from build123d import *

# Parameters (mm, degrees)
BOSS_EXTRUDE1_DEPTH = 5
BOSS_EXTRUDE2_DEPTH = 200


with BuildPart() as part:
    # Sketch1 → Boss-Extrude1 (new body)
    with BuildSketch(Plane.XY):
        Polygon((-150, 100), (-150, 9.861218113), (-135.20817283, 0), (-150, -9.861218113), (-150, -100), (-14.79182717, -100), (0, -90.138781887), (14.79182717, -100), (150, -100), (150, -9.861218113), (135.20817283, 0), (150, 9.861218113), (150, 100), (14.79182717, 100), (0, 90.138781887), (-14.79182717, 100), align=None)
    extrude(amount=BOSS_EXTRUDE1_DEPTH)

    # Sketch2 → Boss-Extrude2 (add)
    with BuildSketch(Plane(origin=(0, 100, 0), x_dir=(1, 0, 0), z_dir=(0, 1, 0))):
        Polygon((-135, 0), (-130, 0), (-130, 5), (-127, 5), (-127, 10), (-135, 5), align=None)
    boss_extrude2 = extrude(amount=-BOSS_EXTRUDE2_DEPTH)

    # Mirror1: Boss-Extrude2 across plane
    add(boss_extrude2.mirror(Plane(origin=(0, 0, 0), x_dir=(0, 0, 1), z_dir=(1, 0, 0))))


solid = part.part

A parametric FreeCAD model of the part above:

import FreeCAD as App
import Part
import Sketcher


def add_polygon(sketch, points):
    """Adds a closed chain of lines whose ends are joined by coincident constraints."""
    first, n = sketch.GeometryCount, len(points)
    for a, b in zip(points, points[1:] + points[:1]):
        sketch.addGeometry(Part.LineSegment(App.Vector(*a, 0), App.Vector(*b, 0)), False)
    for i in range(n):
        sketch.addConstraint(Sketcher.Constraint("Coincident", first + i, 2, first + (i + 1) % n, 1))

doc = App.newDocument("Part")
params = doc.addObject("Spreadsheet::Sheet", "Params")
for row, (alias, value) in enumerate([
    ("pad1_length", "5 mm"),
    ("sketch2_width", "5 mm"),
    ("sketch2_width2", "3 mm"),
    ("pad2_length", "200 mm"),
], start=1):
    params.set(f"A{row}", alias)
    params.set(f"B{row}", "=" + value)
    params.setAlias(f"B{row}", alias)

body = doc.addObject("PartDesign::Body", "Body")

# Sketch on XY plane
sketch1 = doc.addObject("Sketcher::SketchObject", "Sketch")
body.addObject(sketch1)
sketch1.AttachmentSupport = (doc.XY_Plane, [""])
sketch1.MapMode = "FlatFace"
add_polygon(sketch1, [(-150, 100), (-150, 10), (-135, 0), (-150, -10), (-150, -100), (-15, -100), (0, -90), (15, -100), (150, -100), (150, -10), (135, 0), (150, 10), (150, 100), (15, 100), (0, 90), (-15, 100)])  # lines 0-15
sketch1.addConstraint(Sketcher.Constraint("Vertical", 0))
sketch1.addConstraint(Sketcher.Constraint("Vertical", 3))
sketch1.addConstraint(Sketcher.Constraint("Horizontal", 4))
sketch1.addConstraint(Sketcher.Constraint("Horizontal", 7))
sketch1.addConstraint(Sketcher.Constraint("Vertical", 8))
sketch1.addConstraint(Sketcher.Constraint("Vertical", 11))
sketch1.addConstraint(Sketcher.Constraint("Horizontal", 12))
sketch1.addConstraint(Sketcher.Constraint("Horizontal", 15))
sketch1.addConstraint(Sketcher.Constraint("Symmetric", 0, 2, 8, 2, -1, 1))
sketch1.addConstraint(Sketcher.Constraint("Symmetric", 1, 2, 9, 2, -1, 1))
sketch1.addConstraint(Sketcher.Constraint("Symmetric", 2, 2, 10, 2, -1, 1))
sketch1.addConstraint(Sketcher.Constraint("Symmetric", 4, 2, 12, 2, -1, 1))
sketch1.addConstraint(Sketcher.Constraint("Symmetric", 5, 2, 13, 2, -1, 1))
sketch1.addConstraint(Sketcher.Constraint("Symmetric", 6, 2, 14, 2, -1, 1))
sketch1.addConstraint(Sketcher.Constraint("Symmetric", 4, 2, 6, 2, -2))
sketch1.addConstraint(Sketcher.Constraint("Symmetric", 2, 2, 8, 2, -2))
sketch1.addConstraint(Sketcher.Constraint("PointOnObject", 1, 2, -1))
sketch1.addConstraint(Sketcher.Constraint("PointOnObject", 5, 2, -2))
sketch1.addConstraint(Sketcher.Constraint("Parallel", 2, 5))
sketch1.addConstraint(Sketcher.Constraint("Equal", 2, 5))
sketch1.addConstraint(Sketcher.Constraint("DistanceX", 0, 2, -1, 1, 150.0))
sketch1.addConstraint(Sketcher.Constraint("DistanceY", 3, 2, -1, 1, 100.0))
sketch1.addConstraint(Sketcher.Constraint("DistanceY", 0, 2, 0, 1, 90.138782))
sketch1.addConstraint(Sketcher.Constraint("DistanceX", 4, 1, 4, 2, 135.208173))
pad1 = doc.addObject("PartDesign::Pad", "Pad")
body.addObject(pad1)
pad1.Profile = sketch1
pad1.setExpression("Length", "Params.pad1_length")

# Sketch on XZ plane
sketch2 = doc.addObject("Sketcher::SketchObject", "Sketch001")
body.addObject(sketch2)
sketch2.AttachmentSupport = (doc.XZ_Plane, [""])
sketch2.MapMode = "FlatFace"
sketch2.AttachmentOffset = App.Placement(App.Vector(0, 0, -100), App.Rotation())
add_polygon(sketch2, [(-135, 0), (-130, 0), (-130, -5), (-127, -5), (-127, -10), (-135, -5)])  # lines 0-5
sketch2.addConstraint(Sketcher.Constraint("Horizontal", 0))
sketch2.addConstraint(Sketcher.Constraint("Vertical", 1))
sketch2.addConstraint(Sketcher.Constraint("Horizontal", 2))
sketch2.addConstraint(Sketcher.Constraint("Vertical", 3))
sketch2.addConstraint(Sketcher.Constraint("Vertical", 5))
sketch2.addConstraint(Sketcher.Constraint("PointOnObject", 0, 2, -1))
sketch2.addConstraint(Sketcher.Constraint("Horizontal", 2, 2, 4, 2))
sketch2.addConstraint(Sketcher.Constraint("Equal", 0, 1))
sketch2.addConstraint(Sketcher.Constraint("Equal", 1, 3))
sketch2.addConstraint(Sketcher.Constraint("DistanceX", 0, 1, 0, 2, 5.0))
sketch2.addConstraint(Sketcher.Constraint("DistanceX", 2, 1, 2, 2, 3.0))
sketch2.addConstraint(Sketcher.Constraint("DistanceX", 0, 2, -1, 1, 130.0))
sketch2.setExpression("Constraints[15]", "Params.sketch2_width")
sketch2.setExpression("Constraints[16]", "Params.sketch2_width2")
pad2 = doc.addObject("PartDesign::Pad", "Pad001")
body.addObject(pad2)
pad2.Profile = sketch2
pad2.setExpression("Length", "Params.pad2_length")
doc.recompute()

mirrored = doc.addObject("PartDesign::Mirrored", "Mirrored")
body.addObject(mirrored)
mirrored.Originals = [pad2]
mirrored.MirrorPlane = (doc.YZ_Plane, [""])
body.Tip = mirrored

doc.recompute()
